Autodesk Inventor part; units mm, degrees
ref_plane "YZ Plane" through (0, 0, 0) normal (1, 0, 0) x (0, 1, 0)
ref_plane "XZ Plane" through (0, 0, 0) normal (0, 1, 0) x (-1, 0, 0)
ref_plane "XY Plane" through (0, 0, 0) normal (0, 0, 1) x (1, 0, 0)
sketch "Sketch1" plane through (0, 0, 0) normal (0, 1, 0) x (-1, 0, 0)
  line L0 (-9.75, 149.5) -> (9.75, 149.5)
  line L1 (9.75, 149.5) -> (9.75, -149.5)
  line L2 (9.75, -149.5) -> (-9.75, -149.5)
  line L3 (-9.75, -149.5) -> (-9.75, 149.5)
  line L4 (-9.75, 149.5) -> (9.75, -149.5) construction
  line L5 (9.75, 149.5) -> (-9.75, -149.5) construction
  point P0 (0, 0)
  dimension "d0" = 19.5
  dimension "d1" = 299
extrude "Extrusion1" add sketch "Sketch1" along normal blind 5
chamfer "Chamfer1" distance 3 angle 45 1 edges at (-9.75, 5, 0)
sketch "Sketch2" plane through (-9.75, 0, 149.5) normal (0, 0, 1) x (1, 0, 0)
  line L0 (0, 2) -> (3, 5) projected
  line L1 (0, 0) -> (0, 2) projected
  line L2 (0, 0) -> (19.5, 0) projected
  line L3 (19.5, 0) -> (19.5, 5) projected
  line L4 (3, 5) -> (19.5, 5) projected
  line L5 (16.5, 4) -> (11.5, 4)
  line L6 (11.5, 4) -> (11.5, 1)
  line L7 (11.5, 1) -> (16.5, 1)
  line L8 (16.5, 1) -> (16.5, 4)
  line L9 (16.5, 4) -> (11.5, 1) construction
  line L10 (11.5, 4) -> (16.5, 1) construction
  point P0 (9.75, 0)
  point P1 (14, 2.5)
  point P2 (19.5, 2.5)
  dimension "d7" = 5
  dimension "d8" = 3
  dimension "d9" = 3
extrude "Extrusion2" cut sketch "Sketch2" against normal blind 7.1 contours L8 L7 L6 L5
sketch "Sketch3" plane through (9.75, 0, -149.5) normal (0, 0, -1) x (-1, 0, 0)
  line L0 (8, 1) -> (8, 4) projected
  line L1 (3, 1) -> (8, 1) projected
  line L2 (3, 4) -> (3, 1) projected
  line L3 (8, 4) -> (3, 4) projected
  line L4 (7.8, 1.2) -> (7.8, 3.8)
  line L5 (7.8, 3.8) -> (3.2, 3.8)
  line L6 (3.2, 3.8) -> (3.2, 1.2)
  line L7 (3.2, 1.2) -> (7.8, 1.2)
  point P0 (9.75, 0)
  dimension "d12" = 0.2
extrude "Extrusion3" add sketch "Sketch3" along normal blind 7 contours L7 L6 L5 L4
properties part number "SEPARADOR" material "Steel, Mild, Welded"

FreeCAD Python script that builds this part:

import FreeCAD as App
import Part
import Sketcher

V = App.Vector


def edges_at(feature, points):
    """Names of the edges that pass closest to the given points."""
    edges = feature.Shape.Edges
    near = lambda p: min(range(len(edges)), key=lambda i: edges[i].distToShape(Part.Vertex(*p))[0])
    return sorted({f"Edge{near(p) + 1}" for p in points})

doc = App.newDocument("Part")
body = doc.addObject("PartDesign::Body", "Body")

sketch1 = body.newObject("Sketcher::SketchObject", "Sketch")
sketch1.AttachmentSupport = (doc.getObject("XZ_Plane"), [""])
sketch1.MapMode = "FlatFace"
sketch1.addGeometry(Part.LineSegment(V(-9.75, 149.5, 0), V(9.75, 149.5, 0)), False)
sketch1.addGeometry(Part.LineSegment(V(9.75, 149.5, 0), V(9.75, -149.5, 0)), False)
sketch1.addGeometry(Part.LineSegment(V(9.75, -149.5, 0), V(-9.75, -149.5, 0)), False)
sketch1.addGeometry(Part.LineSegment(V(-9.75, -149.5, 0), V(-9.75, 149.5, 0)), False)
sketch1.addConstraint(Sketcher.Constraint("Coincident", 0, 2, 1, 1))
sketch1.addConstraint(Sketcher.Constraint("Coincident", 1, 2, 2, 1))
sketch1.addConstraint(Sketcher.Constraint("Coincident", 2, 2, 3, 1))
sketch1.addConstraint(Sketcher.Constraint("Coincident", 3, 2, 0, 1))
sketch1.addConstraint(Sketcher.Constraint("Horizontal", 0))
sketch1.addConstraint(Sketcher.Constraint("Vertical", 1))
sketch1.addConstraint(Sketcher.Constraint("Horizontal", 2))
sketch1.addConstraint(Sketcher.Constraint("Vertical", 3))
sketch1.addConstraint(Sketcher.Constraint("Symmetric", 0, 2, 2, 2, -1, 1))
sketch1.addConstraint(Sketcher.Constraint("DistanceY", 1, 2, 1, 1, 299.0))
sketch1.addConstraint(Sketcher.Constraint("DistanceX", 0, 1, 0, 2, 19.5))
pad1 = body.newObject("PartDesign::Pad", "Pad")
pad1.Profile = sketch1
pad1.Length = 5
pad1.Reversed = True
doc.recompute()

chamfer = body.newObject("PartDesign::Chamfer", "Chamfer")
chamfer.Base = (pad1, edges_at(pad1, [(-9.75, 5, 0)]))
chamfer.Size = 3

sketch2 = body.newObject("Sketcher::SketchObject", "Sketch001")
sketch2.AttachmentSupport = (doc.getObject("XY_Plane"), [""])
sketch2.MapMode = "FlatFace"
sketch2.AttachmentOffset = App.Placement(V(0, 0, 149.5), App.Rotation())
sketch2.addGeometry(Part.LineSegment(V(6.75, 1, 0), V(6.75, 4, 0)), False)
sketch2.addGeometry(Part.LineSegment(V(6.75, 4, 0), V(1.75, 4, 0)), False)
sketch2.addGeometry(Part.LineSegment(V(1.75, 4, 0), V(1.75, 1, 0)), False)
sketch2.addGeometry(Part.LineSegment(V(1.75, 1, 0), V(6.75, 1, 0)), False)
sketch2.addConstraint(Sketcher.Constraint("Coincident", 0, 2, 1, 1))
sketch2.addConstraint(Sketcher.Constraint("Coincident", 1, 2, 2, 1))
sketch2.addConstraint(Sketcher.Constraint("Coincident", 2, 2, 3, 1))
sketch2.addConstraint(Sketcher.Constraint("Coincident", 3, 2, 0, 1))
sketch2.addConstraint(Sketcher.Constraint("Vertical", 0))
sketch2.addConstraint(Sketcher.Constraint("Horizontal", 1))
sketch2.addConstraint(Sketcher.Constraint("Vertical", 2))
sketch2.addConstraint(Sketcher.Constraint("Horizontal", 3))
sketch2.addConstraint(Sketcher.Constraint("DistanceX", 1, 2, 1, 1, 5.0))
sketch2.addConstraint(Sketcher.Constraint("DistanceY", 0, 1, 0, 2, 3.0))
sketch2.addConstraint(Sketcher.Constraint("DistanceY", -1, 1, 0, 2, 4.0))
sketch2.addConstraint(Sketcher.Constraint("DistanceX", -1, 1, 0, 2, 6.75))
pocket1 = body.newObject("PartDesign::Pocket", "Pocket")
pocket1.Profile = sketch2
pocket1.Length = 7.1

sketch3 = body.newObject("Sketcher::SketchObject", "Sketch002")
sketch3.AttachmentSupport = (doc.getObject("XY_Plane"), [""])
sketch3.MapMode = "FlatFace"
sketch3.AttachmentOffset = App.Placement(V(0, 0, -149.5), App.Rotation())
sketch3.addGeometry(Part.LineSegment(V(6.55, 1.2, 0), V(1.95, 1.2, 0)), False)
sketch3.addGeometry(Part.LineSegment(V(1.95, 1.2, 0), V(1.95, 3.8, 0)), False)
sketch3.addGeometry(Part.LineSegment(V(1.95, 3.8, 0), V(6.55, 3.8, 0)), False)
sketch3.addGeometry(Part.LineSegment(V(6.55, 3.8, 0), V(6.55, 1.2, 0)), False)
sketch3.addConstraint(Sketcher.Constraint("Coincident", 0, 2, 1, 1))
sketch3.addConstraint(Sketcher.Constraint("Coincident", 1, 2, 2, 1))
sketch3.addConstraint(Sketcher.Constraint("Coincident", 2, 2, 3, 1))
sketch3.addConstraint(Sketcher.Constraint("Coincident", 3, 2, 0, 1))
sketch3.addConstraint(Sketcher.Constraint("Horizontal", 0))
sketch3.addConstraint(Sketcher.Constraint("Vertical", 1))
sketch3.addConstraint(Sketcher.Constraint("Horizontal", 2))
sketch3.addConstraint(Sketcher.Constraint("Vertical", 3))
sketch3.addConstraint(Sketcher.Constraint("DistanceX", 0, 2, 0, 1, 4.6))
sketch3.addConstraint(Sketcher.Constraint("DistanceY", 1, 1, 1, 2, 2.6))
sketch3.addConstraint(Sketcher.Constraint("DistanceY", -1, 1, 0, 2, 1.2))
sketch3.addConstraint(Sketcher.Constraint("DistanceX", -1, 1, 0, 2, 1.95))
pad2 = body.newObject("PartDesign::Pad", "Pad001")
pad2.Profile = sketch3
pad2.Length = 7
pad2.Reversed = True

doc.recompute()
